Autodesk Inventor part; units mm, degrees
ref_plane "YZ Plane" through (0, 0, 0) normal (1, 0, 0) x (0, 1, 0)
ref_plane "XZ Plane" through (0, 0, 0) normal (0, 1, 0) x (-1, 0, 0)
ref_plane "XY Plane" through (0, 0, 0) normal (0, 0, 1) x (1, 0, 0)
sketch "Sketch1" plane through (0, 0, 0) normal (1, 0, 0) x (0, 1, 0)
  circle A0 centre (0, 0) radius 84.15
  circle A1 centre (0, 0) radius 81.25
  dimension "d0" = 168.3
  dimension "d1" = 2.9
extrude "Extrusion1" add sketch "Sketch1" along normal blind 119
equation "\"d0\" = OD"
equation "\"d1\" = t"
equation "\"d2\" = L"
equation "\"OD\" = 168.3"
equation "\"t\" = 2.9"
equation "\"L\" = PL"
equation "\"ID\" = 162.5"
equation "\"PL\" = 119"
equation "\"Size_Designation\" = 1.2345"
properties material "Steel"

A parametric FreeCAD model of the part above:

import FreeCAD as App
import Part
import Sketcher

V = App.Vector
Q = App.Units.Quantity

doc = App.newDocument("Part")
body = doc.addObject("PartDesign::Body", "Body")

# Sketch on YZ plane
sketch1 = doc.addObject("Sketcher::SketchObject", "Sketch")
body.addObject(sketch1)
sketch1.AttachmentSupport = (doc.YZ_Plane, [""])
sketch1.MapMode = "FlatFace"
sketch1.addGeometry([
    Part.Circle(V(0, 0, 0), V(0, 0, 1), 84),
    Part.Circle(V(0, 0, 0), V(0, 0, 1), 81),
], False)
sketch1.addConstraint([
    Sketcher.Constraint("Coincident", 0, 3, -1, 1),
    Sketcher.Constraint("Coincident", 1, 3, -1, 1),
    Sketcher.Constraint("Diameter", 0, Q("168.3 mm")),
    Sketcher.Constraint("Diameter", 1, Q("162.5 mm")),
])
pad1 = doc.addObject("PartDesign::Pad", "Pad")
body.addObject(pad1)
pad1.Profile = sketch1
pad1.Length = 119

doc.recompute()
